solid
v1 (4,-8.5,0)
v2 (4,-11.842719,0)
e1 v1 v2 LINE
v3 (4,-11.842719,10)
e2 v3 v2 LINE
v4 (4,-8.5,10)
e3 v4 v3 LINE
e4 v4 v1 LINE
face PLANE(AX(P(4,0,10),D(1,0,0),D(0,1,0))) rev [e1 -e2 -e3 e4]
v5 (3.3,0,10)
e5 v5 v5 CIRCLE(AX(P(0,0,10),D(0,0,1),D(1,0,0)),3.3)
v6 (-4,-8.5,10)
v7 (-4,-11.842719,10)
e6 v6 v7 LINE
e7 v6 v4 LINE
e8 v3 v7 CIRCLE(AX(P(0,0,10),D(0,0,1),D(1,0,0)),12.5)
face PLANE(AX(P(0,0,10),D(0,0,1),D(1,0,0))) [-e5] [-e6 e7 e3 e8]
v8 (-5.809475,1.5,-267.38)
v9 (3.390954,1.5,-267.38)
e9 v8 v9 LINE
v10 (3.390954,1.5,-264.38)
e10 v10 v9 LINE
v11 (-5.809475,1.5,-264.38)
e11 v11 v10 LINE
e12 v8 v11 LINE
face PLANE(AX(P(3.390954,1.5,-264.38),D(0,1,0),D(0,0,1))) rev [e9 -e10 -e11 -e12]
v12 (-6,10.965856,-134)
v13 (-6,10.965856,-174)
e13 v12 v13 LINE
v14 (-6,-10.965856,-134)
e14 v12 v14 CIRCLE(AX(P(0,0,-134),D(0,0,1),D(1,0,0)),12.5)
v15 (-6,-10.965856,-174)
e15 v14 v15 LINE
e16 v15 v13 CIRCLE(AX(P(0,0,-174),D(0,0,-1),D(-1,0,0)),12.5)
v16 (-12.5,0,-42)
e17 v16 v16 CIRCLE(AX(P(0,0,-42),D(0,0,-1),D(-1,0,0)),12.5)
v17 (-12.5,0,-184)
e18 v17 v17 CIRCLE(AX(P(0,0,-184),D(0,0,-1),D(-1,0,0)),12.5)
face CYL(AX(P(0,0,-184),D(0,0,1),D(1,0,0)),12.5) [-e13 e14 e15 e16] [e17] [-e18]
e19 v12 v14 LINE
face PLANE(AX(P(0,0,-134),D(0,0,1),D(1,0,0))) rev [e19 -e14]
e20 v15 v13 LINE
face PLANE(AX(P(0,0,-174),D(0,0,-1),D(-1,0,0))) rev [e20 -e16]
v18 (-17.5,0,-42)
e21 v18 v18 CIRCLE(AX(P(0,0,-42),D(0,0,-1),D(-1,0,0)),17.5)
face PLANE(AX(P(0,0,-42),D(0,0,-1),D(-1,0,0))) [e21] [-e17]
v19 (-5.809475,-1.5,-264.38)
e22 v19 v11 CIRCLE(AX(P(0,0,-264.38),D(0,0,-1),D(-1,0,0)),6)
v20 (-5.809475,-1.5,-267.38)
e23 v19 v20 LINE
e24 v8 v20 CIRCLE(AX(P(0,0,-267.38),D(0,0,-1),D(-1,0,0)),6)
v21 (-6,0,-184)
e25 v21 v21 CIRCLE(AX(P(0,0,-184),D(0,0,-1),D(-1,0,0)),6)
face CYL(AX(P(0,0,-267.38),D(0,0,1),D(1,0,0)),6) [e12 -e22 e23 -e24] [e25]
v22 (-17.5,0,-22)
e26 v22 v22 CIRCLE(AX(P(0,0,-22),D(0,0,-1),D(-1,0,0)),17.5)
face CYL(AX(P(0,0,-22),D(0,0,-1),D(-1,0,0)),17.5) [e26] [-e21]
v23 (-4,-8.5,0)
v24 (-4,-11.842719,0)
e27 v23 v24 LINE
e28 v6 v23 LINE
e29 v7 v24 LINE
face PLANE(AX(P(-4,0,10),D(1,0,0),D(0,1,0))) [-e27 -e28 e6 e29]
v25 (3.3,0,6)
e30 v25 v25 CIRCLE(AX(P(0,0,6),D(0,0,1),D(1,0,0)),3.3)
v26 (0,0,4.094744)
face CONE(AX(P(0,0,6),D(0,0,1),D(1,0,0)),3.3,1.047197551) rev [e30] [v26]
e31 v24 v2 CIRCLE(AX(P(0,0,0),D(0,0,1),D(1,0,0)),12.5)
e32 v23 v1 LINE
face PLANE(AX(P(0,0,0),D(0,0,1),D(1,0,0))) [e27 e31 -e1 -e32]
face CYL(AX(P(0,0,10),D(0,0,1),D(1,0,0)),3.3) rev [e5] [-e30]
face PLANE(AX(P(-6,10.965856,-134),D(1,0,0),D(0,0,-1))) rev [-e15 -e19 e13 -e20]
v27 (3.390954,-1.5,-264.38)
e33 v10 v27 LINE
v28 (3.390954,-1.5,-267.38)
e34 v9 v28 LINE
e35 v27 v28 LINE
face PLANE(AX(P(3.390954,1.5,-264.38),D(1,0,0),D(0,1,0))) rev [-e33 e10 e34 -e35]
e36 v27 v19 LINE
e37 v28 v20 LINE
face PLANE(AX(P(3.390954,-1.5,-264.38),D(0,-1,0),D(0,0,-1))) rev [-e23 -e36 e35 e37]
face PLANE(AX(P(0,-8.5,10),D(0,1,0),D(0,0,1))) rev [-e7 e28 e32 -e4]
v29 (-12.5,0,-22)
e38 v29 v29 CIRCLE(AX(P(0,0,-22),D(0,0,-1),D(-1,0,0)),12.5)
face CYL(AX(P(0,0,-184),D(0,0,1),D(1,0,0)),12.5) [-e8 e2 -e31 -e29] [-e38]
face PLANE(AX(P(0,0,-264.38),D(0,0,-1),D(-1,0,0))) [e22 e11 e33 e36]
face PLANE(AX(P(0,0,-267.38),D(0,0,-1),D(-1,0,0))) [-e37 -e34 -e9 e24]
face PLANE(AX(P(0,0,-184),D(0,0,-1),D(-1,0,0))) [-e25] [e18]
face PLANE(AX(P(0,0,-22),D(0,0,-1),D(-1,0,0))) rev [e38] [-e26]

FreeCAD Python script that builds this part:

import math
import FreeCAD as App
import Part
import Sketcher
Q = App.Units.Quantity

doc = App.newDocument("Part")
body = doc.addObject("PartDesign::Body", "Body")

sketch1 = body.newObject("Sketcher::SketchObject", "Sketch")
sketch1.AttachmentSupport = (doc.getObject("XY_Plane"), [""])
sketch1.MapMode = "FlatFace"
sketch1.addGeometry(Part.Circle(App.Vector(0, 0, 0), App.Vector(0, 0, 1), 30), False)
sketch1.addConstraint(Sketcher.Constraint("Coincident", 0, 3, -1, 1))
sketch1.addConstraint(Sketcher.Constraint("Diameter", 0, 60.0))
pad1 = body.newObject("PartDesign::Pad", "Pad")
pad1.Profile = sketch1
pad1.Length = 15

sketch2 = body.newObject("Sketcher::SketchObject", "Sketch001")
sketch2.AttachmentSupport = (doc.getObject("XY_Plane"), [""])
sketch2.MapMode = "FlatFace"
sketch2.addGeometry(Part.Circle(App.Vector(0, 0, 0), App.Vector(0, 0, 1), 12), False)
sketch2.addConstraint(Sketcher.Constraint("Coincident", 0, 3, -1, 1))
sketch2.addConstraint(Sketcher.Constraint("Diameter", 0, 25.0))
pad2 = body.newObject("PartDesign::Pad", "Pad001")
pad2.Profile = sketch2
pad2.Length = 184
pad2.Reversed = True

sketch3 = body.newObject("Sketcher::SketchObject", "Sketch002")
sketch3.AttachmentSupport = (doc.getObject("XY_Plane"), [""])
sketch3.MapMode = "FlatFace"
sketch3.AttachmentOffset = App.Placement(App.Vector(0, 0, 15), App.Rotation())
sketch3.addGeometry(Part.LineSegment(App.Vector(-115, 20, 0), App.Vector(-115, -20, 0)), False)
sketch3.addGeometry(Part.LineSegment(App.Vector(-115, -20, 0), App.Vector(115, -20, 0)), False)
sketch3.addGeometry(Part.LineSegment(App.Vector(115, -20, 0), App.Vector(115, 20, 0)), False)
sketch3.addGeometry(Part.LineSegment(App.Vector(115, 20, 0), App.Vector(-115, 20, 0)), False)
sketch3.addConstraint(Sketcher.Constraint("Coincident", 0, 2, 1, 1))
sketch3.addConstraint(Sketcher.Constraint("Coincident", 1, 2, 2, 1))
sketch3.addConstraint(Sketcher.Constraint("Coincident", 2, 2, 3, 1))
sketch3.addConstraint(Sketcher.Constraint("Coincident", 3, 2, 0, 1))
sketch3.addConstraint(Sketcher.Constraint("Vertical", 0))
sketch3.addConstraint(Sketcher.Constraint("Horizontal", 1))
sketch3.addConstraint(Sketcher.Constraint("Vertical", 2))
sketch3.addConstraint(Sketcher.Constraint("Horizontal", 3))
sketch3.addConstraint(Sketcher.Constraint("Symmetric", 0, 2, 2, 2, -1, 1))
sketch3.addConstraint(Sketcher.Constraint("DistanceX", 1, 1, 1, 2, 230.0))
sketch3.addConstraint(Sketcher.Constraint("DistanceY", 0, 2, 0, 1, 40.0))
pocket1 = body.newObject("PartDesign::Pocket", "Pocket")
pocket1.Profile = sketch3
pocket1.Length = 5

sketch4 = body.newObject("Sketcher::SketchObject", "Sketch003")
sketch4.AttachmentSupport = (doc.getObject("YZ_Plane"), [""])
sketch4.MapMode = "FlatFace"
sketch4.AttachmentOffset = App.Placement(App.Vector(0, 0, -20.5), App.Rotation())
sketch4.addGeometry(Part.LineSegment(App.Vector(0, 15, 0), App.Vector(0, 0, 0)), False)
sketch4.addGeometry(Part.LineSegment(App.Vector(0, 0, 0), App.Vector(6.12, 0, 0)), False)
sketch4.addGeometry(Part.LineSegment(App.Vector(6.12, 0, 0), App.Vector(6.12, 3.58, 0)), False)
sketch4.addGeometry(Part.LineSegment(App.Vector(6.12, 3.58, 0), App.Vector(2.775, 3.58, 0)), False)
sketch4.addGeometry(Part.LineSegment(App.Vector(2.775, 3.58, 0), App.Vector(2.75, 3.605, 0)), False)
sketch4.addGeometry(Part.LineSegment(App.Vector(2.75, 3.605, 0), App.Vector(2.75, 15, 0)), False)
sketch4.addGeometry(Part.LineSegment(App.Vector(2.75, 15, 0), App.Vector(0, 15, 0)), False)
sketch4.addConstraint(Sketcher.Constraint("Coincident", 0, 2, 1, 1))
sketch4.addConstraint(Sketcher.Constraint("Coincident", 1, 2, 2, 1))
sketch4.addConstraint(Sketcher.Constraint("Coincident", 2, 2, 3, 1))
sketch4.addConstraint(Sketcher.Constraint("Coincident", 3, 2, 4, 1))
sketch4.addConstraint(Sketcher.Constraint("Coincident", 4, 2, 5, 1))
sketch4.addConstraint(Sketcher.Constraint("Coincident", 5, 2, 6, 1))
sketch4.addConstraint(Sketcher.Constraint("Coincident", 6, 2, 0, 1))
sketch4.addConstraint(Sketcher.Constraint("Vertical", 0))
sketch4.addConstraint(Sketcher.Constraint("Horizontal", 1))
sketch4.addConstraint(Sketcher.Constraint("Vertical", 2))
sketch4.addConstraint(Sketcher.Constraint("Horizontal", 3))
sketch4.addConstraint(Sketcher.Constraint("Vertical", 5))
sketch4.addConstraint(Sketcher.Constraint("Horizontal", 6))
sketch4.addConstraint(Sketcher.Constraint("Coincident", 0, 2, -1, 1))
sketch4.addConstraint(Sketcher.Constraint("DistanceY", 0, 2, 0, 1, 15.0))
sketch4.addConstraint(Sketcher.Constraint("Angle", 4, Q("135 deg")))
sketch4.addConstraint(Sketcher.Constraint("DistanceX", 1, 1, 1, 2, 6.12))
sketch4.addConstraint(Sketcher.Constraint("DistanceX", 6, 2, 6, 1, 2.75))
sketch4.addConstraint(Sketcher.Constraint("DistanceY", 2, 1, 2, 2, 3.58))
sketch4.addConstraint(Sketcher.Constraint("DistanceX", 3, 2, 3, 1, 3.345))
groove = body.newObject("PartDesign::Groove", "Groove")
groove.Profile = sketch4
groove.ReferenceAxis = (sketch4, ["V_Axis"])
groove.Angle = 360
doc.recompute()

linearpattern = body.newObject("PartDesign::LinearPattern", "LinearPattern")
linearpattern.Originals = [groove]
linearpattern.Direction = (doc.getObject("X_Axis"), [""])
linearpattern.Mode = "offset"
linearpattern.Offset = 41
linearpattern.Occurrences = 2
body.Tip = linearpattern

sketch5 = body.newObject("Sketcher::SketchObject", "Sketch004")
sketch5.AttachmentSupport = (doc.getObject("XY_Plane"), [""])
sketch5.MapMode = "FlatFace"
sketch5.AttachmentOffset = App.Placement(App.Vector(0, 0, -184), App.Rotation())
sketch5.addGeometry(Part.Circle(App.Vector(0, 0, 0), App.Vector(0, 0, 1), 6), False)
sketch5.addConstraint(Sketcher.Constraint("Coincident", 0, 3, -1, 1))
sketch5.addConstraint(Sketcher.Constraint("Diameter", 0, 12.0))
pad3 = body.newObject("PartDesign::Pad", "Pad002")
pad3.Profile = sketch5
pad3.Length = 83.38
pad3.Reversed = True

sketch6 = body.newObject("Sketcher::SketchObject", "Sketch005")
sketch6.AttachmentSupport = (doc.getObject("XY_Plane"), [""])
sketch6.MapMode = "FlatFace"
sketch6.AttachmentOffset = App.Placement(App.Vector(0, 0, -267.38), App.Rotation())
sketch6.addGeometry(Part.LineSegment(App.Vector(3.4, 1.5, 0), App.Vector(3.4, -1.5, 0)), False)
sketch6.addGeometry(Part.LineSegment(App.Vector(3.4, -1.5, 0), App.Vector(-7, -1.5, 0)), False)
sketch6.addGeometry(Part.LineSegment(App.Vector(-7, -1.5, 0), App.Vector(-7, 1.5, 0)), False)
sketch6.addGeometry(Part.LineSegment(App.Vector(-7, 1.5, 0), App.Vector(3.4, 1.5, 0)), False)
sketch6.addConstraint(Sketcher.Constraint("Coincident", 0, 2, 1, 1))
sketch6.addConstraint(Sketcher.Constraint("Coincident", 1, 2, 2, 1))
sketch6.addConstraint(Sketcher.Constraint("Coincident", 2, 2, 3, 1))
sketch6.addConstraint(Sketcher.Constraint("Coincident", 3, 2, 0, 1))
sketch6.addConstraint(Sketcher.Constraint("Vertical", 0))
sketch6.addConstraint(Sketcher.Constraint("Horizontal", 1))
sketch6.addConstraint(Sketcher.Constraint("Vertical", 2))
sketch6.addConstraint(Sketcher.Constraint("Horizontal", 3))
sketch6.addConstraint(Sketcher.Constraint("DistanceY", 0, 2, 0, 1, 3.0))
sketch6.addConstraint(Sketcher.Constraint("DistanceY", 0, 2, -1, 1, 1.5))
sketch6.addConstraint(Sketcher.Constraint("DistanceX", 1, 2, 1, 1, 10.356322))
sketch6.addConstraint(Sketcher.Constraint("DistanceX", 1, 2, -1, 1, 6.965369))
pocket2 = body.newObject("PartDesign::Pocket", "Pocket001")
pocket2.Profile = sketch6
pocket2.Length = 3
pocket2.Reversed = True

sketch7 = body.newObject("Sketcher::SketchObject", "Sketch006")
sketch7.AttachmentSupport = (doc.getObject("XY_Plane"), [""])
sketch7.MapMode = "FlatFace"
sketch7.AttachmentOffset = App.Placement(App.Vector(0, 0, -184), App.Rotation())
sketch7.addGeometry(Part.LineSegment(App.Vector(-6, 11, 0), App.Vector(-6, -11, 0)), False)
sketch7.addGeometry(Part.LineSegment(App.Vector(-6, -11, 0), App.Vector(-14, -11, 0)), False)
sketch7.addGeometry(Part.LineSegment(App.Vector(-14, -11, 0), App.Vector(-14, 11, 0)), False)
sketch7.addGeometry(Part.LineSegment(App.Vector(-14, 11, 0), App.Vector(-6, 11, 0)), False)
sketch7.addConstraint(Sketcher.Constraint("Coincident", 0, 2, 1, 1))
sketch7.addConstraint(Sketcher.Constraint("Coincident", 1, 2, 2, 1))
sketch7.addConstraint(Sketcher.Constraint("Coincident", 2, 2, 3, 1))
sketch7.addConstraint(Sketcher.Constraint("Coincident", 3, 2, 0, 1))
sketch7.addConstraint(Sketcher.Constraint("Vertical", 0))
sketch7.addConstraint(Sketcher.Constraint("Horizontal", 1))
sketch7.addConstraint(Sketcher.Constraint("Vertical", 2))
sketch7.addConstraint(Sketcher.Constraint("Horizontal", 3))
sketch7.addConstraint(Sketcher.Constraint("DistanceX", 0, 2, -1, 1, 6.0))
sketch7.addConstraint(Sketcher.Constraint("DistanceX", 1, 2, 1, 1, 7.933444))
sketch7.addConstraint(Sketcher.Constraint("DistanceY", 0, 2, 0, 1, 21.931712))
sketch7.addConstraint(Sketcher.Constraint("DistanceY", 0, 2, -1, 1, 10.965856))
pocket3 = body.newObject("PartDesign::Pocket", "Pocket002")
pocket3.Profile = sketch7
pocket3.Length = 50
pocket3.Reversed = True

sketch8 = body.newObject("Sketcher::SketchObject", "Sketch007")
sketch8.AttachmentSupport = (doc.getObject("XY_Plane"), [""])
sketch8.MapMode = "FlatFace"
sketch8.AttachmentOffset = App.Placement(App.Vector(0, 0, -174), App.Rotation())
sketch8.addGeometry(Part.Circle(App.Vector(0, 0, 0), App.Vector(0, 0, 1), 12), False)
sketch8.addConstraint(Sketcher.Constraint("Coincident", 0, 3, -1, 1))
sketch8.addConstraint(Sketcher.Constraint("Diameter", 0, 25.0))
pad4 = body.newObject("PartDesign::Pad", "Pad003")
pad4.Profile = sketch8
pad4.Length = 10
pad4.Reversed = True

sketch9 = body.newObject("Sketcher::SketchObject", "Sketch008")
sketch9.AttachmentSupport = (doc.getObject("XY_Plane"), [""])
sketch9.MapMode = "FlatFace"
sketch9.AttachmentOffset = App.Placement(App.Vector(0, 0, -134), App.Rotation())
sketch9.addGeometry(Part.Circle(App.Vector(0, 0, 0), App.Vector(0, 0, 1), 18), False)
sketch9.addConstraint(Sketcher.Constraint("Coincident", 0, 3, -1, 1))
sketch9.addConstraint(Sketcher.Constraint("Diameter", 0, 35.0))
pad5 = body.newObject("PartDesign::Pad", "Pad004")
pad5.Profile = sketch9
pad5.Length = 112

sketch10 = body.newObject("Sketcher::SketchObject", "Sketch009")
sketch10.AttachmentSupport = (doc.getObject("XY_Plane"), [""])
sketch10.MapMode = "FlatFace"
sketch10.AttachmentOffset = App.Placement(App.Vector(0, 0, -42), App.Rotation())
sketch10.addGeometry(Part.Circle(App.Vector(0, 0, 0), App.Vector(0, 0, 1), 18), False)
sketch10.addGeometry(Part.ArcOfCircle(Part.Circle(App.Vector(0, 0, 0), App.Vector(0, 0, 1), 12), math.radians(-119), math.radians(119)), False)
sketch10.addGeometry(Part.ArcOfCircle(Part.Circle(App.Vector(0, 0, 0), App.Vector(0, 0, 1), 12), math.radians(119), math.radians(180)), False)
sketch10.addGeometry(Part.ArcOfCircle(Part.Circle(App.Vector(0, 0, 0), App.Vector(0, 0, 1), 12), math.radians(180), math.radians(241)), False)
sketch10.addConstraint(Sketcher.Constraint("Tangent", 1, 2, 2, 1))
sketch10.addConstraint(Sketcher.Constraint("Tangent", 2, 2, 3, 1))
sketch10.addConstraint(Sketcher.Constraint("Tangent", 3, 2, 1, 1))
sketch10.addConstraint(Sketcher.Constraint("Coincident", 0, 3, -1, 1))
sketch10.addConstraint(Sketcher.Constraint("Coincident", 1, 3, -1, 1))
sketch10.addConstraint(Sketcher.Constraint("PointOnObject", 2, 2, -1))
sketch10.addConstraint(Sketcher.Constraint("Vertical", 1, 2, 3, 2))
sketch10.addConstraint(Sketcher.Constraint("Diameter", 0, 35.0))
sketch10.addConstraint(Sketcher.Constraint("Radius", 1, 12.5))
sketch10.addConstraint(Sketcher.Constraint("DistanceX", 1, 2, -1, 1, 6.0))
pocket4 = body.newObject("PartDesign::Pocket", "Pocket003")
pocket4.Profile = sketch10
pocket4.Length = 92

sketch11 = body.newObject("Sketcher::SketchObject", "Sketch010")
sketch11.AttachmentSupport = (doc.getObject("XY_Plane"), [""])
sketch11.MapMode = "FlatFace"
sketch11.addGeometry(Part.Circle(App.Vector(0, 0, 0), App.Vector(0, 0, 1), 30), False)
sketch11.addConstraint(Sketcher.Constraint("Coincident", 0, 3, -1, 1))
sketch11.addConstraint(Sketcher.Constraint("Diameter", 0, 60.0))
pocket5 = body.newObject("PartDesign::Pocket", "Pocket004")
pocket5.Profile = sketch11
pocket5.Length = 15
pocket5.Reversed = True

sketch12 = body.newObject("Sketcher::SketchObject", "Sketch011")
sketch12.AttachmentSupport = (doc.getObject("XY_Plane"), [""])
sketch12.MapMode = "FlatFace"
sketch12.AttachmentOffset = App.Placement(App.Vector(0, 0, 10), App.Rotation())
sketch12.addGeometry(Part.LineSegment(App.Vector(-4, -11.8, 0), App.Vector(-4, -8.5, 0)), False)
sketch12.addGeometry(Part.LineSegment(App.Vector(-4, -8.5, 0), App.Vector(4, -8.5, 0)), False)
sketch12.addGeometry(Part.LineSegment(App.Vector(4, -8.5, 0), App.Vector(4, -11.8, 0)), False)
sketch12.addGeometry(Part.ArcOfCircle(Part.Circle(App.Vector(0, 0, 0), App.Vector(0, 0, 1), 12.5), math.radians(-71), math.radians(0)), False)
sketch12.addGeometry(Part.ArcOfCircle(Part.Circle(App.Vector(0, 0, 0), App.Vector(0, 0, 1), 12.5), math.radians(0), math.radians(251)), False)
sketch12.addConstraint(Sketcher.Constraint("Coincident", 0, 2, 1, 1))
sketch12.addConstraint(Sketcher.Constraint("Coincident", 1, 2, 2, 1))
sketch12.addConstraint(Sketcher.Constraint("Coincident", 2, 2, 3, 1))
sketch12.addConstraint(Sketcher.Constraint("Tangent", 3, 2, 4, 1))
sketch12.addConstraint(Sketcher.Constraint("Coincident", 4, 2, 0, 1))
sketch12.addConstraint(Sketcher.Constraint("Vertical", 0))
sketch12.addConstraint(Sketcher.Constraint("Horizontal", 1))
sketch12.addConstraint(Sketcher.Constraint("Vertical", 2))
sketch12.addConstraint(Sketcher.Constraint("Coincident", 3, 3, -1, 1))
sketch12.addConstraint(Sketcher.Constraint("Equal", 3, 4))
sketch12.addConstraint(Sketcher.Constraint("PointOnObject", 3, 2, -1))
sketch12.addConstraint(Sketcher.Constraint("Horizontal", 2, 2, 4, 2))
sketch12.addConstraint(Sketcher.Constraint("Radius", 3, 12.5))
sketch12.addConstraint(Sketcher.Constraint("DistanceX", 1, 1, 1, 2, 8.0))
sketch12.addConstraint(Sketcher.Constraint("DistanceY", 0, 2, -1, 1, 8.5))
pad6 = body.newObject("PartDesign::Pad", "Pad005")
pad6.Profile = sketch12
pad6.Length = 10
pad6.Reversed = True

sketch13 = body.newObject("Sketcher::SketchObject", "Sketch012")
sketch13.AttachmentSupport = (doc.getObject("XY_Plane"), [""])
sketch13.MapMode = "FlatFace"
sketch13.AttachmentOffset = App.Placement(App.Vector(0, 0, 10), App.Rotation())
sketch13.addGeometry(Part.Circle(App.Vector(0, 0, 0), App.Vector(0, 0, 1), 3.3), False)
sketch13.addConstraint(Sketcher.Constraint("Coincident", 0, 3, -1, 1))
sketch13.addConstraint(Sketcher.Constraint("Diameter", 0, 6.6))
doc.recompute()
hole = body.newObject("PartDesign::Hole", "Hole")
hole.Profile = sketch13
hole.ThreadType = "None"
hole.Diameter = 6.6
hole.DepthType = "Dimension"
hole.Depth = 4
hole.DrillPoint = "Angled"
hole.DrillPointAngle = 120

doc.recompute()
